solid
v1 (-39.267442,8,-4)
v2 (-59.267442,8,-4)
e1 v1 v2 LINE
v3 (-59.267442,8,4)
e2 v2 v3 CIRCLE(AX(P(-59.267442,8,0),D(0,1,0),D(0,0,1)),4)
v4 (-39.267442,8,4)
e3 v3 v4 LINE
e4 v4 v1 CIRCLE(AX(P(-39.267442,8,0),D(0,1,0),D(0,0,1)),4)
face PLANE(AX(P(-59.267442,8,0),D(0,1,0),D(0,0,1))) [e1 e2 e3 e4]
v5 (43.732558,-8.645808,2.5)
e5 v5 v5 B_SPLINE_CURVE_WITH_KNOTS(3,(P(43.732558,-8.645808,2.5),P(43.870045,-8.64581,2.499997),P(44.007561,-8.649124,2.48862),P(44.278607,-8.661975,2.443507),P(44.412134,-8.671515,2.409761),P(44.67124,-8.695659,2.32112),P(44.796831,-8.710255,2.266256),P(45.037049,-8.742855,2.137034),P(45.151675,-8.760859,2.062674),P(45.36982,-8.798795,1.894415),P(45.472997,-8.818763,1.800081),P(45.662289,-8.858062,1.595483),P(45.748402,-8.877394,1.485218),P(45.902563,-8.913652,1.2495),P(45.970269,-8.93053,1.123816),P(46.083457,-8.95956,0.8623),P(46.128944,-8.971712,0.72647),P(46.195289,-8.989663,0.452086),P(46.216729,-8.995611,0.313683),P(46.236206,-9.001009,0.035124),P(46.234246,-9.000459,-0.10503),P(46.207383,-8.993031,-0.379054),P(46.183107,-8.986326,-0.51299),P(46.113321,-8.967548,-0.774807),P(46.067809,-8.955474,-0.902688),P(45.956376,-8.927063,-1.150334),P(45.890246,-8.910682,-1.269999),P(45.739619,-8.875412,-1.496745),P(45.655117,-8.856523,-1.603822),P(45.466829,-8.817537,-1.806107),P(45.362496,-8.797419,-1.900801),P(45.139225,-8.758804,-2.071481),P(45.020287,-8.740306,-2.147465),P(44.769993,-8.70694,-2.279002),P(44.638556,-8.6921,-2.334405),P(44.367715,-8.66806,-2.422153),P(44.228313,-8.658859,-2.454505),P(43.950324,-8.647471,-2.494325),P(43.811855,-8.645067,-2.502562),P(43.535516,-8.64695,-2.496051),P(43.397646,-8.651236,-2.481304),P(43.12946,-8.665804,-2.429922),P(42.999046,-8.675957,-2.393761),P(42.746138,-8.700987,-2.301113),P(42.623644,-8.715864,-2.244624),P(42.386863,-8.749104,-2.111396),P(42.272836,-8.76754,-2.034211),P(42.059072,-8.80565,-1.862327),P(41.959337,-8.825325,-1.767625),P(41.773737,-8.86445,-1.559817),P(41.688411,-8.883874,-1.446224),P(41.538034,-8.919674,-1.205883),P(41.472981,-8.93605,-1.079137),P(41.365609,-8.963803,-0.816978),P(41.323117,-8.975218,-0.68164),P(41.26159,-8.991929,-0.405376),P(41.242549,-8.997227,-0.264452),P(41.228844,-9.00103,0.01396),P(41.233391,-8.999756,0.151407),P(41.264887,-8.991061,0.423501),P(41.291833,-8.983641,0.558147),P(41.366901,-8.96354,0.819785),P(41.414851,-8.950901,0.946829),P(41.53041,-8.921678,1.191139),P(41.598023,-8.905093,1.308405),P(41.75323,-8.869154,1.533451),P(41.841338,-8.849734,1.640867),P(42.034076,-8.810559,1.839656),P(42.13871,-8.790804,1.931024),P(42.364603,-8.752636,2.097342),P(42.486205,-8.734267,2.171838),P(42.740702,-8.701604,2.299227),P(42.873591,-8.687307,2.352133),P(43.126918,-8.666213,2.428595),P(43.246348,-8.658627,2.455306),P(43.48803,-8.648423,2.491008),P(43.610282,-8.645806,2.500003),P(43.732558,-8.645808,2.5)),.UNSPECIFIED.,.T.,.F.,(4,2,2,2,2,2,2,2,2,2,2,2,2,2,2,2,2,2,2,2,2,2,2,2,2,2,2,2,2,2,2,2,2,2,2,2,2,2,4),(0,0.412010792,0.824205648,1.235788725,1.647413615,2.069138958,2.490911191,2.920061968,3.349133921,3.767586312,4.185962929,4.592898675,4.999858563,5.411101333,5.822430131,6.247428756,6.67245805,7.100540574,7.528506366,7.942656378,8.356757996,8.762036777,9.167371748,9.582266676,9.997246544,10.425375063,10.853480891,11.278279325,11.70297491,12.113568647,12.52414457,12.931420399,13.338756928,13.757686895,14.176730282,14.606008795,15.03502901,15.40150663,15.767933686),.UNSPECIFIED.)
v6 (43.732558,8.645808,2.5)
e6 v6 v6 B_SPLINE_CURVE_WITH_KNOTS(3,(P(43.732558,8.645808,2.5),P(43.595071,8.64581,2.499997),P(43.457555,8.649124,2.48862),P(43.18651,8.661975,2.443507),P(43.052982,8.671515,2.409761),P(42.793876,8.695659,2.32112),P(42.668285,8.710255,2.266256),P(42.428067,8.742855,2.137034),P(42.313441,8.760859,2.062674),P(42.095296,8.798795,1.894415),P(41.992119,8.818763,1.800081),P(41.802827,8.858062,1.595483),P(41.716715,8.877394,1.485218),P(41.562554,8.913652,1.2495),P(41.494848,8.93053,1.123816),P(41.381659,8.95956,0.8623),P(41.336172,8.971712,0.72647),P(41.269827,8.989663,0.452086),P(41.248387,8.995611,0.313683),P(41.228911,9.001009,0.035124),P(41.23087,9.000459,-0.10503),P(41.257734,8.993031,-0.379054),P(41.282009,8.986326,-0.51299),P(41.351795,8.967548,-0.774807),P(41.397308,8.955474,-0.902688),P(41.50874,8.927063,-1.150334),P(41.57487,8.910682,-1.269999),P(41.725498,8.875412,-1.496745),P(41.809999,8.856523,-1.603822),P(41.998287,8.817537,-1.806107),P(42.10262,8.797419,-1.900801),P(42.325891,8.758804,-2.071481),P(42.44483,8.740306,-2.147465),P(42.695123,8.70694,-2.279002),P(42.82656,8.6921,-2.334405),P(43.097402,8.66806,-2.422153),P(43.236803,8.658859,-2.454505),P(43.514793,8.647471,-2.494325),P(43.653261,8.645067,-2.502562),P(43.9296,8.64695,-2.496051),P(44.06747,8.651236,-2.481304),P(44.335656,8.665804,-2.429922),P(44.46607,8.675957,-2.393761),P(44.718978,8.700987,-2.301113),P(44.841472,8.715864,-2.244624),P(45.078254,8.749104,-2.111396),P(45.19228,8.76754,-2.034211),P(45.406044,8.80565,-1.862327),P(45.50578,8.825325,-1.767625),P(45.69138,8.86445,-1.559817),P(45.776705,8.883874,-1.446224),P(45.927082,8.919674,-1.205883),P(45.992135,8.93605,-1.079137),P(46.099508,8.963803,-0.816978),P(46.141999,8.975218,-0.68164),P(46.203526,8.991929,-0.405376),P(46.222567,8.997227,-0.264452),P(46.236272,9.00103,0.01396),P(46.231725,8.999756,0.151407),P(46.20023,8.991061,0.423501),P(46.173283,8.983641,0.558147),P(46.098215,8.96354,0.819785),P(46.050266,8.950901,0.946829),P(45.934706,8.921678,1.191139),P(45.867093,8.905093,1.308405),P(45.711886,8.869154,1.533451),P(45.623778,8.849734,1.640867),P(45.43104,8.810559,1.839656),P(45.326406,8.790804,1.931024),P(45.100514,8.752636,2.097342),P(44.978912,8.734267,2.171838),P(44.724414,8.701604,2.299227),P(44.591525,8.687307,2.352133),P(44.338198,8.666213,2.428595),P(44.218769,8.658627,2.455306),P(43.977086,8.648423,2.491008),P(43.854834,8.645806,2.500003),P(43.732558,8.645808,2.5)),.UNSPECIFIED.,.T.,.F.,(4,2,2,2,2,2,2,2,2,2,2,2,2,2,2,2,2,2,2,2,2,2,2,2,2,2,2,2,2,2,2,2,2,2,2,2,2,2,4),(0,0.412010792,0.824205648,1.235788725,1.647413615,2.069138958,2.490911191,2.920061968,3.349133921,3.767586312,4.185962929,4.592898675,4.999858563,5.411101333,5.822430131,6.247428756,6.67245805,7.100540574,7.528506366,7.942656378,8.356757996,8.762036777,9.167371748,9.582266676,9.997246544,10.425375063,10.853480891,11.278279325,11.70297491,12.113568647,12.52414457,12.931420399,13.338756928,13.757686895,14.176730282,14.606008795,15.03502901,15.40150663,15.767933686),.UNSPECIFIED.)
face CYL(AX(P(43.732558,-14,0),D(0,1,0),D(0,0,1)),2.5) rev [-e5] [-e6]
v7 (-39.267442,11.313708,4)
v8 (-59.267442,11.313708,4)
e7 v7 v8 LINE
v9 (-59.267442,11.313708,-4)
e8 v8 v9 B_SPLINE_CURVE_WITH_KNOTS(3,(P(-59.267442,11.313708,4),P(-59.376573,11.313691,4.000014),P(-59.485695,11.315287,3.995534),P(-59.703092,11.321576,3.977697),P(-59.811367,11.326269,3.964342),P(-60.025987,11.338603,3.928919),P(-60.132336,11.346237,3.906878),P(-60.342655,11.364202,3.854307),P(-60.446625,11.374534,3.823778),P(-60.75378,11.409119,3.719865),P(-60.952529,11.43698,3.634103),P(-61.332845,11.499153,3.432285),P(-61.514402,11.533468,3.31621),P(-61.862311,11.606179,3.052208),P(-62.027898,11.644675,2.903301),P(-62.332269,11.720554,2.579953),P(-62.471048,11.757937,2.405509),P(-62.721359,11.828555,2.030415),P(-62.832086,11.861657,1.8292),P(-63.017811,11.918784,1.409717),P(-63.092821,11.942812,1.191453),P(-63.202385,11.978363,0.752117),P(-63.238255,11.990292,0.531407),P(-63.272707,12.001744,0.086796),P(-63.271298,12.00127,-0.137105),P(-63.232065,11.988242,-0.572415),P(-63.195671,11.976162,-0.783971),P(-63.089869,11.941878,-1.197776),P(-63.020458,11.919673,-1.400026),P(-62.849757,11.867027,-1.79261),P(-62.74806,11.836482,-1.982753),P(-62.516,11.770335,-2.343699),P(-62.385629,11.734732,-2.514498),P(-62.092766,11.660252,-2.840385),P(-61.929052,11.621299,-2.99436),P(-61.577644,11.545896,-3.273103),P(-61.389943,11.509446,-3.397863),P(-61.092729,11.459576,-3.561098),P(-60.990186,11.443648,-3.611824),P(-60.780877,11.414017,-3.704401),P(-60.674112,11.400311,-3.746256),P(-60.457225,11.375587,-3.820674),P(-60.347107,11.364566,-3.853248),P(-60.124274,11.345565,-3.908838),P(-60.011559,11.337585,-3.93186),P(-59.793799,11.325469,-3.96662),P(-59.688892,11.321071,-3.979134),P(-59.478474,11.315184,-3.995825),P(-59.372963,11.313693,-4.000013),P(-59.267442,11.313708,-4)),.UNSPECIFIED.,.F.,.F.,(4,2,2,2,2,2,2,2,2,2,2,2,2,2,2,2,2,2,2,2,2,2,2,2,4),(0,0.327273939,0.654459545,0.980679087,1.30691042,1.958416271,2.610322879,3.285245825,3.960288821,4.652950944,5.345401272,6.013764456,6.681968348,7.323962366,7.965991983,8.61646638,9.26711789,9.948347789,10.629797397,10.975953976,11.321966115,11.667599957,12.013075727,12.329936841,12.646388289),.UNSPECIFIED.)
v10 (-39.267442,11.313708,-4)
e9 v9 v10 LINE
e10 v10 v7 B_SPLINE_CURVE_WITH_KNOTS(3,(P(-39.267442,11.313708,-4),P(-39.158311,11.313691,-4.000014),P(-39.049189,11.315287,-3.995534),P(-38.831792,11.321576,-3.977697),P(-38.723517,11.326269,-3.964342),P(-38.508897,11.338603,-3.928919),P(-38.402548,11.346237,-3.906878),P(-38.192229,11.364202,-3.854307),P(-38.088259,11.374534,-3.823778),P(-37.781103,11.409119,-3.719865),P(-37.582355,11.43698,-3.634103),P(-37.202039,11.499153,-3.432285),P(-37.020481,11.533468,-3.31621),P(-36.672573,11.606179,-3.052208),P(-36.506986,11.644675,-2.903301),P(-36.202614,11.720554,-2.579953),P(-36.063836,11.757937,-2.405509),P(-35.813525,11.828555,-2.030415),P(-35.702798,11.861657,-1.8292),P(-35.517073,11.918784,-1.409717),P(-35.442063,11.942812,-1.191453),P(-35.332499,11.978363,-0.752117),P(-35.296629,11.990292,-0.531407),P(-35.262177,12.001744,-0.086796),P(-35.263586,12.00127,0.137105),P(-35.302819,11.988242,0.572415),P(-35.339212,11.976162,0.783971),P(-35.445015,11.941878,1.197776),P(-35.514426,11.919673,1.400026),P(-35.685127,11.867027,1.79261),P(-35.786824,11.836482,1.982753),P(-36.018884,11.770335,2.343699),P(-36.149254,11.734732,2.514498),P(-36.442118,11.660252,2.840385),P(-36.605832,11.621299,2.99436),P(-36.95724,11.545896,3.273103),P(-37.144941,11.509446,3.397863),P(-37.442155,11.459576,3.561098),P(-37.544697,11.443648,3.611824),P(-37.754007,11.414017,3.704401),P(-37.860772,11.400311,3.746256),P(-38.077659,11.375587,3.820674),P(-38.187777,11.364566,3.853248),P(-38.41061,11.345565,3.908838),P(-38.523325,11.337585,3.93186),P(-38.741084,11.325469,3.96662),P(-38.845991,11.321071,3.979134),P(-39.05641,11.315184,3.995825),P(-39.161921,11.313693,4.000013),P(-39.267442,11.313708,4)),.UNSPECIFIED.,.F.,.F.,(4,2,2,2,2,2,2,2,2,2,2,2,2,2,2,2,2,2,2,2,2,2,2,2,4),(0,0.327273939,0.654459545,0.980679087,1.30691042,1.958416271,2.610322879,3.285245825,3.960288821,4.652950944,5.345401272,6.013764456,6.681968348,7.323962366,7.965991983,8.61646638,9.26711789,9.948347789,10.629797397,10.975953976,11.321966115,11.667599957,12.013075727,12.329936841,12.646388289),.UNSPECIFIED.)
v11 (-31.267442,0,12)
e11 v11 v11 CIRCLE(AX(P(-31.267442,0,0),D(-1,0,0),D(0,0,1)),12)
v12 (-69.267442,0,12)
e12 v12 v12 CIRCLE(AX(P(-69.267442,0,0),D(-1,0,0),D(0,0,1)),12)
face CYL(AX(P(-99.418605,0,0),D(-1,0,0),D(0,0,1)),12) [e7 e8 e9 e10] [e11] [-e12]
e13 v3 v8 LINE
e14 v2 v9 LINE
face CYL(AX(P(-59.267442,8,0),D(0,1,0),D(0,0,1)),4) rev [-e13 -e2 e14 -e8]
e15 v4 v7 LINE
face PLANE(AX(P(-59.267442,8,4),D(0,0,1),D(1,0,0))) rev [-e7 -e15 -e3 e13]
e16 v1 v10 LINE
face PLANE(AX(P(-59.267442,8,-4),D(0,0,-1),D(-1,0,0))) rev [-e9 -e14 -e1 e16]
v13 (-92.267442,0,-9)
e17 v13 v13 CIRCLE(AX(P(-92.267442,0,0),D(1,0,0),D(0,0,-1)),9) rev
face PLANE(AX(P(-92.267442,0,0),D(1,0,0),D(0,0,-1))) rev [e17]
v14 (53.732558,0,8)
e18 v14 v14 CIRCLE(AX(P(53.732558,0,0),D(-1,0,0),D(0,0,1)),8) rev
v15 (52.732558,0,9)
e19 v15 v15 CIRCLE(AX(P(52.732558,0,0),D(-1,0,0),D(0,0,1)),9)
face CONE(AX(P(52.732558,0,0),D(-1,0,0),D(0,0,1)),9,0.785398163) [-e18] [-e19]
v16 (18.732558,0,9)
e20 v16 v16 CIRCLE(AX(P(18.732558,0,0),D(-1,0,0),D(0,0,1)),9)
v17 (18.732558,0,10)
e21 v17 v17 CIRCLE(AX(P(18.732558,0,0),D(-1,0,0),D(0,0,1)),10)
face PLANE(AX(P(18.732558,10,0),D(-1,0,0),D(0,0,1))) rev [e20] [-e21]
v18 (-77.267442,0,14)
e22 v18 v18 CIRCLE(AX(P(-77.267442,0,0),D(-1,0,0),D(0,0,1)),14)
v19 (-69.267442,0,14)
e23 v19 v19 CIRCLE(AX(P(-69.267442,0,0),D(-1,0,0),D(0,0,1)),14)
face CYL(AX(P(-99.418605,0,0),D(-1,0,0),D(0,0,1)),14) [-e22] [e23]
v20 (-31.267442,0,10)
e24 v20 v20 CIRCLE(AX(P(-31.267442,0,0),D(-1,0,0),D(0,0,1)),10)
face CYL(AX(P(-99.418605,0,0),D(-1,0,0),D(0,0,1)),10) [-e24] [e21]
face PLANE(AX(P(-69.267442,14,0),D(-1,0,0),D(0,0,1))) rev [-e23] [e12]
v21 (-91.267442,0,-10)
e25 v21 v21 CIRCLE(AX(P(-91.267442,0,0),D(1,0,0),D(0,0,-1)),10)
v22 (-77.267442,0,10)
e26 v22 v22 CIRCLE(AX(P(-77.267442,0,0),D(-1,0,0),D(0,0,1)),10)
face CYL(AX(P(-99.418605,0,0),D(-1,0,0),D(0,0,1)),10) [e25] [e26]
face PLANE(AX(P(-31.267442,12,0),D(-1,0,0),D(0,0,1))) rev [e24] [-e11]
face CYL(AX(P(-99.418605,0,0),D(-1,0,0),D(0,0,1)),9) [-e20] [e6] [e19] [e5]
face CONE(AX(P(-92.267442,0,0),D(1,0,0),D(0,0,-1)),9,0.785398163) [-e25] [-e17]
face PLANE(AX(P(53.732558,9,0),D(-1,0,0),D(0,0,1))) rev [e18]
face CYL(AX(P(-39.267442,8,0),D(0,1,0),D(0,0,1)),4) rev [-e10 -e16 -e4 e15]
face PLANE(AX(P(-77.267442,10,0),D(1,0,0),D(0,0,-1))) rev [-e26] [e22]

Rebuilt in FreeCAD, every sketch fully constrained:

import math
import FreeCAD as App
import Part
import Sketcher
Q = App.Units.Quantity


def edges_at(feature, points):
    """Names of the edges that pass closest to the given points."""
    edges = feature.Shape.Edges
    near = lambda p: min(range(len(edges)), key=lambda i: edges[i].distToShape(Part.Vertex(*p))[0])
    return sorted({f"Edge{near(p) + 1}" for p in points})

doc = App.newDocument("Part")
body = doc.addObject("PartDesign::Body", "Body")

# Sketch on XY plane
sketch1 = body.newObject("Sketcher::SketchObject", "Sketch")
sketch1.AttachmentSupport = (doc.getObject("XY_Plane"), [""])
sketch1.MapMode = "FlatFace"
sketch1.addGeometry([
    Part.LineSegment(App.Vector(-92.3, 10, 0), App.Vector(-92.3, 0, 0)),  # 0
    Part.LineSegment(App.Vector(-92.3, 0, 0), App.Vector(53.7, 0, 0)),  # 1
    Part.LineSegment(App.Vector(53.7, 0, 0), App.Vector(53.7, 9, 0)),  # 2
    Part.LineSegment(App.Vector(53.7, 9, 0), App.Vector(18.7, 9, 0)),  # 3
    Part.LineSegment(App.Vector(18.7, 9, 0), App.Vector(18.7, 10, 0)),  # 4
    Part.LineSegment(App.Vector(18.7, 10, 0), App.Vector(-31.3, 10, 0)),  # 5
    Part.LineSegment(App.Vector(-31.3, 10, 0), App.Vector(-31.3, 12, 0)),  # 6
    Part.LineSegment(App.Vector(-31.3, 12, 0), App.Vector(-69.3, 12, 0)),  # 7
    Part.LineSegment(App.Vector(-69.3, 12, 0), App.Vector(-69.3, 14, 0)),  # 8
    Part.LineSegment(App.Vector(-69.3, 14, 0), App.Vector(-77.3, 14, 0)),  # 9
    Part.LineSegment(App.Vector(-77.3, 14, 0), App.Vector(-77.3, 10, 0)),  # 10
    Part.LineSegment(App.Vector(-77.3, 10, 0), App.Vector(-92.3, 10, 0)),  # 11
], False)
sketch1.addConstraint([
    Sketcher.Constraint("Coincident", 0, 2, 1, 1),
    Sketcher.Constraint("Coincident", 1, 2, 2, 1),
    Sketcher.Constraint("Coincident", 2, 2, 3, 1),
    Sketcher.Constraint("Coincident", 3, 2, 4, 1),
    Sketcher.Constraint("Coincident", 4, 2, 5, 1),
    Sketcher.Constraint("Coincident", 5, 2, 6, 1),
    Sketcher.Constraint("Coincident", 6, 2, 7, 1),
    Sketcher.Constraint("Coincident", 7, 2, 8, 1),
    Sketcher.Constraint("Coincident", 8, 2, 9, 1),
    Sketcher.Constraint("Coincident", 9, 2, 10, 1),
    Sketcher.Constraint("Coincident", 10, 2, 11, 1),
    Sketcher.Constraint("Coincident", 11, 2, 0, 1),
    Sketcher.Constraint("Vertical", 0),
    Sketcher.Constraint("Horizontal", 1),
    Sketcher.Constraint("Vertical", 2),
    Sketcher.Constraint("Horizontal", 3),
    Sketcher.Constraint("Vertical", 4),
    Sketcher.Constraint("Horizontal", 5),
    Sketcher.Constraint("Vertical", 6),
    Sketcher.Constraint("Horizontal", 7),
    Sketcher.Constraint("Vertical", 8),
    Sketcher.Constraint("Horizontal", 9),
    Sketcher.Constraint("Vertical", 10),
    Sketcher.Constraint("Horizontal", 11),
    Sketcher.Constraint("PointOnObject", 0, 2, -1),
    Sketcher.Constraint("Horizontal", 5, 2, 10, 2),
    Sketcher.Constraint("Equal", 6, 8),
    Sketcher.Constraint("DistanceX", 1, 1, 1, 2, Q("146 mm")),
    Sketcher.Constraint("DistanceX", 3, 2, 3, 1, Q("35 mm")),
    Sketcher.Constraint("DistanceX", 5, 2, 5, 1, Q("50 mm")),
    Sketcher.Constraint("DistanceX", 7, 2, 7, 1, Q("38 mm")),
    Sketcher.Constraint("DistanceX", 9, 2, 9, 1, Q("8 mm")),
    Sketcher.Constraint("DistanceY", 0, 2, 0, 1, Q("10 mm")),
    Sketcher.Constraint("DistanceY", 2, 1, 2, 2, Q("9 mm")),
    Sketcher.Constraint("DistanceY", 6, 1, 6, 2, Q("2 mm")),
    Sketcher.Constraint("DistanceX", 0, 2, -1, 1, Q("92.267442 mm")),
])
revolution = body.newObject("PartDesign::Revolution", "Revolution")
revolution.Profile = sketch1
revolution.ReferenceAxis = (sketch1, ["H_Axis"])
revolution.Angle = 360
doc.recompute()

chamfer = body.newObject("PartDesign::Chamfer", "Chamfer")
chamfer.Base = (revolution, edges_at(revolution, [(-92.267, 0, -10), (53.733, 0, -9)]))
chamfer.Size = 1

# Sketch on XZ plane
sketch2 = body.newObject("Sketcher::SketchObject", "Sketch001")
sketch2.AttachmentSupport = (doc.getObject("XZ_Plane"), [""])
sketch2.MapMode = "FlatFace"
sketch2.AttachmentOffset = App.Placement(App.Vector(0, 0, -9), App.Rotation())
sketch2.addGeometry(Part.Circle(App.Vector(43.7, 0, 0), App.Vector(0, 0, 1), 2.5), False)
sketch2.addConstraint([
    Sketcher.Constraint("PointOnObject", 0, 3, -1),
    Sketcher.Constraint("Diameter", 0, Q("5 mm")),
    Sketcher.Constraint("DistanceX", -1, 1, 0, 3, Q("43.732558 mm")),
])
pocket1 = body.newObject("PartDesign::Pocket", "Pocket")
pocket1.Profile = sketch2
pocket1.Type = "ThroughAll"
pocket1.Reversed = True

# Sketch on XZ plane
sketch3 = body.newObject("Sketcher::SketchObject", "Sketch002")
sketch3.AttachmentSupport = (doc.getObject("XZ_Plane"), [""])
sketch3.MapMode = "FlatFace"
sketch3.AttachmentOffset = App.Placement(App.Vector(0, 0, -12), App.Rotation())
sketch3.addGeometry([
    Part.LineSegment(App.Vector(-39.3, -4, 0), App.Vector(-59.3, -4, 0)),
    Part.ArcOfCircle(Part.Circle(App.Vector(-59.3, 0, 0), App.Vector(0, 0, 1), 4), math.radians(90), math.radians(270)),
    Part.LineSegment(App.Vector(-59.3, 4, 0), App.Vector(-39.3, 4, 0)),
    Part.ArcOfCircle(Part.Circle(App.Vector(-39.3, 0, 0), App.Vector(0, 0, 1), 4), math.radians(-90), math.radians(90)),
], False)
sketch3.addConstraint([
    Sketcher.Constraint("Tangent", 0, 2, 1, 2),
    Sketcher.Constraint("Tangent", 1, 1, 2, 1),
    Sketcher.Constraint("Tangent", 2, 2, 3, 2),
    Sketcher.Constraint("Tangent", 3, 1, 0, 1),
    Sketcher.Constraint("Horizontal", 0),
    Sketcher.Constraint("Horizontal", 2),
    Sketcher.Constraint("PointOnObject", 1, 3, -1),
    Sketcher.Constraint("Radius", 1, Q("4 mm")),
    Sketcher.Constraint("DistanceX", 0, 2, 0, 1, Q("20 mm")),
    Sketcher.Constraint("DistanceX", 1, 3, -1, 1, Q("59.267442 mm")),
])
pocket2 = body.newObject("PartDesign::Pocket", "Pocket001")
pocket2.Profile = sketch3
pocket2.Length = 4
pocket2.Reversed = True

doc.recompute()
